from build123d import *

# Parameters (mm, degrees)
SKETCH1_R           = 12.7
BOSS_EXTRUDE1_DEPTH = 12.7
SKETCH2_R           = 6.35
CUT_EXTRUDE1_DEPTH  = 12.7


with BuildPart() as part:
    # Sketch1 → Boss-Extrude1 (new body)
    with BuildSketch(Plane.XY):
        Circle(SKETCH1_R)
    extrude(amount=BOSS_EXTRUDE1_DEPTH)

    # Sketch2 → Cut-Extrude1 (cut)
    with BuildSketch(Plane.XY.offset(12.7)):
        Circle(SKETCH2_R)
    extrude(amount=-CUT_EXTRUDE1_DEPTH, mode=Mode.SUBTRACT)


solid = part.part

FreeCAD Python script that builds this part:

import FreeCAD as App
import Part
import Sketcher
Q = App.Units.Quantity

doc = App.newDocument("Part")
body = doc.addObject("PartDesign::Body", "Body")

sketch1 = doc.addObject("Sketcher::SketchObject", "Sketch")
body.addObject(sketch1)
sketch1.AttachmentSupport = (doc.XY_Plane, [""])
sketch1.MapMode = "FlatFace"
sketch1.addGeometry(Part.Circle(App.Vector(0, 0, 0), App.Vector(0, 0, 1), 13), False)
sketch1.addConstraint(Sketcher.Constraint("Coincident", 0, 3, -1, 1))
sketch1.addConstraint(Sketcher.Constraint("Diameter", 0, Q("1 in")))
pad1 = doc.addObject("PartDesign::Pad", "Pad")
body.addObject(pad1)
pad1.Profile = sketch1
pad1.Length = Q("0.5 in")

sketch2 = doc.addObject("Sketcher::SketchObject", "Sketch001")
body.addObject(sketch2)
sketch2.AttachmentSupport = (doc.XY_Plane, [""])
sketch2.MapMode = "FlatFace"
sketch2.AttachmentOffset = App.Placement(App.Vector(0, 0, 0.5 * 25.4), App.Rotation())
sketch2.addGeometry(Part.Circle(App.Vector(0, 0, 0), App.Vector(0, 0, 1), 6), False)
sketch2.addConstraint(Sketcher.Constraint("Coincident", 0, 3, -1, 1))
sketch2.addConstraint(Sketcher.Constraint("Diameter", 0, Q("0.5 in")))
pocket1 = doc.addObject("PartDesign::Pocket", "Pocket")
body.addObject(pocket1)
pocket1.Profile = sketch2
pocket1.Length = Q("0.5 in")

doc.recompute()
